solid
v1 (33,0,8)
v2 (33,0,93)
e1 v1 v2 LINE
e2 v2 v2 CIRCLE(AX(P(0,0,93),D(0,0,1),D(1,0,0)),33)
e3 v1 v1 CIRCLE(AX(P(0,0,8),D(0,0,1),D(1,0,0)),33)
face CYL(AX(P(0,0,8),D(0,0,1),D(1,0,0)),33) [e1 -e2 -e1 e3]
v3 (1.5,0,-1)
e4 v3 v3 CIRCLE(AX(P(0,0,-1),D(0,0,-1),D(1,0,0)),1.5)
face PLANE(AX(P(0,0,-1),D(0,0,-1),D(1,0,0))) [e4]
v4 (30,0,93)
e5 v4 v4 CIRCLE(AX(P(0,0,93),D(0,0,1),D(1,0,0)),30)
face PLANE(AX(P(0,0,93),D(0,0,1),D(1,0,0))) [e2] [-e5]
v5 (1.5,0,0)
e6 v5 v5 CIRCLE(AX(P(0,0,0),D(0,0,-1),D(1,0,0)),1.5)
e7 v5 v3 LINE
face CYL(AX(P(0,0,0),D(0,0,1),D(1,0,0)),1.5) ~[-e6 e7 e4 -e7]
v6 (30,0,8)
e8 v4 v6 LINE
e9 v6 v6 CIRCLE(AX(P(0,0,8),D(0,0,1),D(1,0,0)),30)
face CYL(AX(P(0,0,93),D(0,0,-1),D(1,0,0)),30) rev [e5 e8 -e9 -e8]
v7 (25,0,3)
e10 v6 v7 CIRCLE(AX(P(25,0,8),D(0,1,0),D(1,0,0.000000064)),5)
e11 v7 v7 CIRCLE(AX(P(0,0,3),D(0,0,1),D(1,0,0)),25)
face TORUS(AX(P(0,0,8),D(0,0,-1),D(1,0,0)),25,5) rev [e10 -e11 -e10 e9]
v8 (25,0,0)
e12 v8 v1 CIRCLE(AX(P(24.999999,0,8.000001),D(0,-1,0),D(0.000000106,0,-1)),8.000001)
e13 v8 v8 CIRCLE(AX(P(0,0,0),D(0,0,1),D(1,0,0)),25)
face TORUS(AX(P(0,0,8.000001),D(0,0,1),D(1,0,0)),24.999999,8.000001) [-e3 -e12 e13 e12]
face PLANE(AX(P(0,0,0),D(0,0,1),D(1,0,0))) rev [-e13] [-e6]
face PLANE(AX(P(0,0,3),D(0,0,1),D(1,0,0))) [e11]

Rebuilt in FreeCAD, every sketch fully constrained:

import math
import FreeCAD as App
import Part
import Sketcher
Q = App.Units.Quantity

doc = App.newDocument("Part")
body = doc.addObject("PartDesign::Body", "Body")

# Sketch on XZ plane
sketch1 = doc.addObject("Sketcher::SketchObject", "Sketch")
body.addObject(sketch1)
sketch1.AttachmentSupport = (doc.XZ_Plane, [""])
sketch1.MapMode = "FlatFace"
sketch1.addGeometry(Part.LineSegment(App.Vector(0, 3, 0), App.Vector(0, 0, 0)), False)
sketch1.addGeometry(Part.LineSegment(App.Vector(0, 0, 0), App.Vector(25, 0, 0)), False)
sketch1.addGeometry(Part.ArcOfCircle(Part.Circle(App.Vector(25, 8, 0), App.Vector(0, 0, 1), 8), math.radians(-90), math.radians(0)), False)
sketch1.addGeometry(Part.LineSegment(App.Vector(33, 8, 0), App.Vector(33, 93, 0)), False)
sketch1.addGeometry(Part.LineSegment(App.Vector(33, 93, 0), App.Vector(30, 93, 0)), False)
sketch1.addGeometry(Part.LineSegment(App.Vector(30, 93, 0), App.Vector(30, 8, 0)), False)
sketch1.addGeometry(Part.ArcOfCircle(Part.Circle(App.Vector(25, 8, 0), App.Vector(0, 0, 1), 5), math.radians(-90), math.radians(0)), False)
sketch1.addGeometry(Part.LineSegment(App.Vector(25, 3, 0), App.Vector(0, 3, 0)), False)
sketch1.addConstraint(Sketcher.Constraint("Coincident", 0, 2, 1, 1))
sketch1.addConstraint(Sketcher.Constraint("Tangent", 1, 2, 2, 1))
sketch1.addConstraint(Sketcher.Constraint("Tangent", 2, 2, 3, 1))
sketch1.addConstraint(Sketcher.Constraint("Coincident", 3, 2, 4, 1))
sketch1.addConstraint(Sketcher.Constraint("Coincident", 4, 2, 5, 1))
sketch1.addConstraint(Sketcher.Constraint("Tangent", 5, 2, 6, 2))
sketch1.addConstraint(Sketcher.Constraint("Tangent", 6, 1, 7, 1))
sketch1.addConstraint(Sketcher.Constraint("Coincident", 7, 2, 0, 1))
sketch1.addConstraint(Sketcher.Constraint("Vertical", 0))
sketch1.addConstraint(Sketcher.Constraint("Horizontal", 1))
sketch1.addConstraint(Sketcher.Constraint("Vertical", 3))
sketch1.addConstraint(Sketcher.Constraint("Horizontal", 4))
sketch1.addConstraint(Sketcher.Constraint("Vertical", 5))
sketch1.addConstraint(Sketcher.Constraint("Horizontal", 7))
sketch1.addConstraint(Sketcher.Constraint("Coincident", 0, 2, -1, 1))
sketch1.addConstraint(Sketcher.Constraint("Coincident", 6, 3, 2, 3))
sketch1.addConstraint(Sketcher.Constraint("Radius", 2, Q("8.000001 mm")))
sketch1.addConstraint(Sketcher.Constraint("Radius", 6, Q("5 mm")))
sketch1.addConstraint(Sketcher.Constraint("DistanceX", 1, 1, 1, 2, Q("25 mm")))
sketch1.addConstraint(Sketcher.Constraint("DistanceY", 3, 1, 3, 2, Q("85 mm")))
revolution = doc.addObject("PartDesign::Revolution", "Revolution")
body.addObject(revolution)
revolution.Profile = sketch1
revolution.ReferenceAxis = (sketch1, ["V_Axis"])
revolution.Angle = 360

# Sketch on XY plane
sketch2 = doc.addObject("Sketcher::SketchObject", "Sketch001")
body.addObject(sketch2)
sketch2.AttachmentSupport = (doc.XY_Plane, [""])
sketch2.MapMode = "FlatFace"
sketch2.addGeometry(Part.Circle(App.Vector(0, 0, 0), App.Vector(0, 0, 1), 1.5), False)
sketch2.addConstraint(Sketcher.Constraint("Coincident", 0, 3, -1, 1))
sketch2.addConstraint(Sketcher.Constraint("Diameter", 0, Q("3 mm")))
pad1 = doc.addObject("PartDesign::Pad", "Pad")
body.addObject(pad1)
pad1.Profile = sketch2
pad1.Length = 1
pad1.Reversed = True

doc.recompute()
